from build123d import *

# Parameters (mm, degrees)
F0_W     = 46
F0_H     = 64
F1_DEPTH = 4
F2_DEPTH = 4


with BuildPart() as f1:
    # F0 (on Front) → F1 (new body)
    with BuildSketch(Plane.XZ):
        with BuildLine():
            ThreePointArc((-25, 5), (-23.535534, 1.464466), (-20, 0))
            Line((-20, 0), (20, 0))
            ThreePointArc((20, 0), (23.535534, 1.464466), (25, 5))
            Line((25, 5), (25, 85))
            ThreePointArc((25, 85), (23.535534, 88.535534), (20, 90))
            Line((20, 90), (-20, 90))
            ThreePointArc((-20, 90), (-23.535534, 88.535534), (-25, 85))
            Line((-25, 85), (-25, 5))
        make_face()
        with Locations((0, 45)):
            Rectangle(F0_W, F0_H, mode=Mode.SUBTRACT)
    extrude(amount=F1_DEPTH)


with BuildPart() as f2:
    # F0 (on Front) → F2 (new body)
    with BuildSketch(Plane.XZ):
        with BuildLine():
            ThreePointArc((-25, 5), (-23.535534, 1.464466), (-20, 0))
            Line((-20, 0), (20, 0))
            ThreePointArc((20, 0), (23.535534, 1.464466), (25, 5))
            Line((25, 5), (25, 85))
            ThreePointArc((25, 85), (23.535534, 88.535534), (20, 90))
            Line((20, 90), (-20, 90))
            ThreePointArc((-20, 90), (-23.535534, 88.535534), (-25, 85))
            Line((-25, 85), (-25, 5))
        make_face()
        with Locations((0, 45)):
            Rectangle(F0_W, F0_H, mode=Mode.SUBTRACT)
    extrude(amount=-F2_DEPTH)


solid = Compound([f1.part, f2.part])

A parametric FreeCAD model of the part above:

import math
import FreeCAD as App
import Part
import Sketcher

doc = App.newDocument("Part")
body = doc.addObject("PartDesign::Body", "Body")

sketch1 = body.newObject("Sketcher::SketchObject", "Sketch")
sketch1.AttachmentSupport = (doc.getObject("XZ_Plane"), [""])
sketch1.MapMode = "FlatFace"
sketch1.addGeometry([
    Part.ArcOfCircle(Part.Circle(App.Vector(-20, 5, 0), App.Vector(0, 0, 1), 5), math.radians(180), math.radians(270)),
    Part.LineSegment(App.Vector(-20, 0, 0), App.Vector(20, 0, 0)),
    Part.ArcOfCircle(Part.Circle(App.Vector(20, 5, 0), App.Vector(0, 0, 1), 5), math.radians(-90), math.radians(0)),
    Part.LineSegment(App.Vector(25, 5, 0), App.Vector(25, 85, 0)),
    Part.ArcOfCircle(Part.Circle(App.Vector(20, 85, 0), App.Vector(0, 0, 1), 5), math.radians(0), math.radians(90)),
    Part.LineSegment(App.Vector(20, 90, 0), App.Vector(-20, 90, 0)),
    Part.ArcOfCircle(Part.Circle(App.Vector(-20, 85, 0), App.Vector(0, 0, 1), 5), math.radians(90), math.radians(180)),
    Part.LineSegment(App.Vector(-25, 85, 0), App.Vector(-25, 5, 0)),
    Part.LineSegment(App.Vector(23, 13, 0), App.Vector(-23, 13, 0)),
    Part.LineSegment(App.Vector(-23, 13, 0), App.Vector(-23, 77, 0)),
    Part.LineSegment(App.Vector(-23, 77, 0), App.Vector(23, 77, 0)),
    Part.LineSegment(App.Vector(23, 77, 0), App.Vector(23, 13, 0)),
], False)
sketch1.addConstraint([
    Sketcher.Constraint("Tangent", 0, 2, 1, 1),
    Sketcher.Constraint("Tangent", 1, 2, 2, 1),
    Sketcher.Constraint("Tangent", 2, 2, 3, 1),
    Sketcher.Constraint("Tangent", 3, 2, 4, 1),
    Sketcher.Constraint("Tangent", 4, 2, 5, 1),
    Sketcher.Constraint("Tangent", 5, 2, 6, 1),
    Sketcher.Constraint("Tangent", 6, 2, 7, 1),
    Sketcher.Constraint("Tangent", 7, 2, 0, 1),
    Sketcher.Constraint("Coincident", 8, 2, 9, 1),
    Sketcher.Constraint("Coincident", 9, 2, 10, 1),
    Sketcher.Constraint("Coincident", 10, 2, 11, 1),
    Sketcher.Constraint("Coincident", 11, 2, 8, 1),
    Sketcher.Constraint("Horizontal", 1),
    Sketcher.Constraint("Vertical", 3),
    Sketcher.Constraint("Horizontal", 5),
    Sketcher.Constraint("Vertical", 7),
    Sketcher.Constraint("Horizontal", 8),
    Sketcher.Constraint("Vertical", 9),
    Sketcher.Constraint("Horizontal", 10),
    Sketcher.Constraint("Vertical", 11),
    Sketcher.Constraint("Equal", 0, 2),
    Sketcher.Constraint("Equal", 2, 4),
    Sketcher.Constraint("Equal", 4, 6),
    Sketcher.Constraint("Symmetric", 0, 2, 1, 2, -1, 1),
    Sketcher.Constraint("Radius", 0, 5.0),
    Sketcher.Constraint("DistanceX", 1, 1, 1, 2, 40.0),
    Sketcher.Constraint("DistanceX", 8, 2, 8, 1, 46.0),
    Sketcher.Constraint("DistanceY", 3, 1, 3, 2, 80.0),
    Sketcher.Constraint("DistanceY", 9, 1, 9, 2, 64.0),
    Sketcher.Constraint("DistanceX", 8, 2, -1, 1, 23.0),
    Sketcher.Constraint("DistanceY", -1, 1, 8, 2, 13.0),
])
pad1 = body.newObject("PartDesign::Pad", "Pad")
pad1.Profile = sketch1
pad1.Length = 4
body2 = doc.addObject("PartDesign::Body", "Body001")

sketch2 = body2.newObject("Sketcher::SketchObject", "Sketch001")
sketch2.AttachmentSupport = (doc.getObject("XZ_Plane001"), [""])
sketch2.MapMode = "FlatFace"
sketch2.addGeometry([
    Part.ArcOfCircle(Part.Circle(App.Vector(-20, 5, 0), App.Vector(0, 0, 1), 5), math.radians(180), math.radians(270)),
    Part.LineSegment(App.Vector(-20, 0, 0), App.Vector(20, 0, 0)),
    Part.ArcOfCircle(Part.Circle(App.Vector(20, 5, 0), App.Vector(0, 0, 1), 5), math.radians(-90), math.radians(0)),
    Part.LineSegment(App.Vector(25, 5, 0), App.Vector(25, 85, 0)),
    Part.ArcOfCircle(Part.Circle(App.Vector(20, 85, 0), App.Vector(0, 0, 1), 5), math.radians(0), math.radians(90)),
    Part.LineSegment(App.Vector(20, 90, 0), App.Vector(-20, 90, 0)),
    Part.ArcOfCircle(Part.Circle(App.Vector(-20, 85, 0), App.Vector(0, 0, 1), 5), math.radians(90), math.radians(180)),
    Part.LineSegment(App.Vector(-25, 85, 0), App.Vector(-25, 5, 0)),
    Part.LineSegment(App.Vector(23, 13, 0), App.Vector(-23, 13, 0)),
    Part.LineSegment(App.Vector(-23, 13, 0), App.Vector(-23, 77, 0)),
    Part.LineSegment(App.Vector(-23, 77, 0), App.Vector(23, 77, 0)),
    Part.LineSegment(App.Vector(23, 77, 0), App.Vector(23, 13, 0)),
], False)
sketch2.addConstraint([
    Sketcher.Constraint("Tangent", 0, 2, 1, 1),
    Sketcher.Constraint("Tangent", 1, 2, 2, 1),
    Sketcher.Constraint("Tangent", 2, 2, 3, 1),
    Sketcher.Constraint("Tangent", 3, 2, 4, 1),
    Sketcher.Constraint("Tangent", 4, 2, 5, 1),
    Sketcher.Constraint("Tangent", 5, 2, 6, 1),
    Sketcher.Constraint("Tangent", 6, 2, 7, 1),
    Sketcher.Constraint("Tangent", 7, 2, 0, 1),
    Sketcher.Constraint("Coincident", 8, 2, 9, 1),
    Sketcher.Constraint("Coincident", 9, 2, 10, 1),
    Sketcher.Constraint("Coincident", 10, 2, 11, 1),
    Sketcher.Constraint("Coincident", 11, 2, 8, 1),
    Sketcher.Constraint("Horizontal", 1),
    Sketcher.Constraint("Vertical", 3),
    Sketcher.Constraint("Horizontal", 5),
    Sketcher.Constraint("Vertical", 7),
    Sketcher.Constraint("Horizontal", 8),
    Sketcher.Constraint("Vertical", 9),
    Sketcher.Constraint("Horizontal", 10),
    Sketcher.Constraint("Vertical", 11),
    Sketcher.Constraint("Equal", 0, 2),
    Sketcher.Constraint("Equal", 2, 4),
    Sketcher.Constraint("Equal", 4, 6),
    Sketcher.Constraint("Symmetric", 0, 2, 1, 2, -1, 1),
    Sketcher.Constraint("Radius", 0, 5.0),
    Sketcher.Constraint("DistanceX", 1, 1, 1, 2, 40.0),
    Sketcher.Constraint("DistanceX", 8, 2, 8, 1, 46.0),
    Sketcher.Constraint("DistanceY", 3, 1, 3, 2, 80.0),
    Sketcher.Constraint("DistanceY", 9, 1, 9, 2, 64.0),
    Sketcher.Constraint("DistanceX", 8, 2, -1, 1, 23.0),
    Sketcher.Constraint("DistanceY", -1, 1, 8, 2, 13.0),
])
pad2 = body2.newObject("PartDesign::Pad", "Pad001")
pad2.Profile = sketch2
pad2.Length = 4
pad2.Reversed = True

doc.recompute()
